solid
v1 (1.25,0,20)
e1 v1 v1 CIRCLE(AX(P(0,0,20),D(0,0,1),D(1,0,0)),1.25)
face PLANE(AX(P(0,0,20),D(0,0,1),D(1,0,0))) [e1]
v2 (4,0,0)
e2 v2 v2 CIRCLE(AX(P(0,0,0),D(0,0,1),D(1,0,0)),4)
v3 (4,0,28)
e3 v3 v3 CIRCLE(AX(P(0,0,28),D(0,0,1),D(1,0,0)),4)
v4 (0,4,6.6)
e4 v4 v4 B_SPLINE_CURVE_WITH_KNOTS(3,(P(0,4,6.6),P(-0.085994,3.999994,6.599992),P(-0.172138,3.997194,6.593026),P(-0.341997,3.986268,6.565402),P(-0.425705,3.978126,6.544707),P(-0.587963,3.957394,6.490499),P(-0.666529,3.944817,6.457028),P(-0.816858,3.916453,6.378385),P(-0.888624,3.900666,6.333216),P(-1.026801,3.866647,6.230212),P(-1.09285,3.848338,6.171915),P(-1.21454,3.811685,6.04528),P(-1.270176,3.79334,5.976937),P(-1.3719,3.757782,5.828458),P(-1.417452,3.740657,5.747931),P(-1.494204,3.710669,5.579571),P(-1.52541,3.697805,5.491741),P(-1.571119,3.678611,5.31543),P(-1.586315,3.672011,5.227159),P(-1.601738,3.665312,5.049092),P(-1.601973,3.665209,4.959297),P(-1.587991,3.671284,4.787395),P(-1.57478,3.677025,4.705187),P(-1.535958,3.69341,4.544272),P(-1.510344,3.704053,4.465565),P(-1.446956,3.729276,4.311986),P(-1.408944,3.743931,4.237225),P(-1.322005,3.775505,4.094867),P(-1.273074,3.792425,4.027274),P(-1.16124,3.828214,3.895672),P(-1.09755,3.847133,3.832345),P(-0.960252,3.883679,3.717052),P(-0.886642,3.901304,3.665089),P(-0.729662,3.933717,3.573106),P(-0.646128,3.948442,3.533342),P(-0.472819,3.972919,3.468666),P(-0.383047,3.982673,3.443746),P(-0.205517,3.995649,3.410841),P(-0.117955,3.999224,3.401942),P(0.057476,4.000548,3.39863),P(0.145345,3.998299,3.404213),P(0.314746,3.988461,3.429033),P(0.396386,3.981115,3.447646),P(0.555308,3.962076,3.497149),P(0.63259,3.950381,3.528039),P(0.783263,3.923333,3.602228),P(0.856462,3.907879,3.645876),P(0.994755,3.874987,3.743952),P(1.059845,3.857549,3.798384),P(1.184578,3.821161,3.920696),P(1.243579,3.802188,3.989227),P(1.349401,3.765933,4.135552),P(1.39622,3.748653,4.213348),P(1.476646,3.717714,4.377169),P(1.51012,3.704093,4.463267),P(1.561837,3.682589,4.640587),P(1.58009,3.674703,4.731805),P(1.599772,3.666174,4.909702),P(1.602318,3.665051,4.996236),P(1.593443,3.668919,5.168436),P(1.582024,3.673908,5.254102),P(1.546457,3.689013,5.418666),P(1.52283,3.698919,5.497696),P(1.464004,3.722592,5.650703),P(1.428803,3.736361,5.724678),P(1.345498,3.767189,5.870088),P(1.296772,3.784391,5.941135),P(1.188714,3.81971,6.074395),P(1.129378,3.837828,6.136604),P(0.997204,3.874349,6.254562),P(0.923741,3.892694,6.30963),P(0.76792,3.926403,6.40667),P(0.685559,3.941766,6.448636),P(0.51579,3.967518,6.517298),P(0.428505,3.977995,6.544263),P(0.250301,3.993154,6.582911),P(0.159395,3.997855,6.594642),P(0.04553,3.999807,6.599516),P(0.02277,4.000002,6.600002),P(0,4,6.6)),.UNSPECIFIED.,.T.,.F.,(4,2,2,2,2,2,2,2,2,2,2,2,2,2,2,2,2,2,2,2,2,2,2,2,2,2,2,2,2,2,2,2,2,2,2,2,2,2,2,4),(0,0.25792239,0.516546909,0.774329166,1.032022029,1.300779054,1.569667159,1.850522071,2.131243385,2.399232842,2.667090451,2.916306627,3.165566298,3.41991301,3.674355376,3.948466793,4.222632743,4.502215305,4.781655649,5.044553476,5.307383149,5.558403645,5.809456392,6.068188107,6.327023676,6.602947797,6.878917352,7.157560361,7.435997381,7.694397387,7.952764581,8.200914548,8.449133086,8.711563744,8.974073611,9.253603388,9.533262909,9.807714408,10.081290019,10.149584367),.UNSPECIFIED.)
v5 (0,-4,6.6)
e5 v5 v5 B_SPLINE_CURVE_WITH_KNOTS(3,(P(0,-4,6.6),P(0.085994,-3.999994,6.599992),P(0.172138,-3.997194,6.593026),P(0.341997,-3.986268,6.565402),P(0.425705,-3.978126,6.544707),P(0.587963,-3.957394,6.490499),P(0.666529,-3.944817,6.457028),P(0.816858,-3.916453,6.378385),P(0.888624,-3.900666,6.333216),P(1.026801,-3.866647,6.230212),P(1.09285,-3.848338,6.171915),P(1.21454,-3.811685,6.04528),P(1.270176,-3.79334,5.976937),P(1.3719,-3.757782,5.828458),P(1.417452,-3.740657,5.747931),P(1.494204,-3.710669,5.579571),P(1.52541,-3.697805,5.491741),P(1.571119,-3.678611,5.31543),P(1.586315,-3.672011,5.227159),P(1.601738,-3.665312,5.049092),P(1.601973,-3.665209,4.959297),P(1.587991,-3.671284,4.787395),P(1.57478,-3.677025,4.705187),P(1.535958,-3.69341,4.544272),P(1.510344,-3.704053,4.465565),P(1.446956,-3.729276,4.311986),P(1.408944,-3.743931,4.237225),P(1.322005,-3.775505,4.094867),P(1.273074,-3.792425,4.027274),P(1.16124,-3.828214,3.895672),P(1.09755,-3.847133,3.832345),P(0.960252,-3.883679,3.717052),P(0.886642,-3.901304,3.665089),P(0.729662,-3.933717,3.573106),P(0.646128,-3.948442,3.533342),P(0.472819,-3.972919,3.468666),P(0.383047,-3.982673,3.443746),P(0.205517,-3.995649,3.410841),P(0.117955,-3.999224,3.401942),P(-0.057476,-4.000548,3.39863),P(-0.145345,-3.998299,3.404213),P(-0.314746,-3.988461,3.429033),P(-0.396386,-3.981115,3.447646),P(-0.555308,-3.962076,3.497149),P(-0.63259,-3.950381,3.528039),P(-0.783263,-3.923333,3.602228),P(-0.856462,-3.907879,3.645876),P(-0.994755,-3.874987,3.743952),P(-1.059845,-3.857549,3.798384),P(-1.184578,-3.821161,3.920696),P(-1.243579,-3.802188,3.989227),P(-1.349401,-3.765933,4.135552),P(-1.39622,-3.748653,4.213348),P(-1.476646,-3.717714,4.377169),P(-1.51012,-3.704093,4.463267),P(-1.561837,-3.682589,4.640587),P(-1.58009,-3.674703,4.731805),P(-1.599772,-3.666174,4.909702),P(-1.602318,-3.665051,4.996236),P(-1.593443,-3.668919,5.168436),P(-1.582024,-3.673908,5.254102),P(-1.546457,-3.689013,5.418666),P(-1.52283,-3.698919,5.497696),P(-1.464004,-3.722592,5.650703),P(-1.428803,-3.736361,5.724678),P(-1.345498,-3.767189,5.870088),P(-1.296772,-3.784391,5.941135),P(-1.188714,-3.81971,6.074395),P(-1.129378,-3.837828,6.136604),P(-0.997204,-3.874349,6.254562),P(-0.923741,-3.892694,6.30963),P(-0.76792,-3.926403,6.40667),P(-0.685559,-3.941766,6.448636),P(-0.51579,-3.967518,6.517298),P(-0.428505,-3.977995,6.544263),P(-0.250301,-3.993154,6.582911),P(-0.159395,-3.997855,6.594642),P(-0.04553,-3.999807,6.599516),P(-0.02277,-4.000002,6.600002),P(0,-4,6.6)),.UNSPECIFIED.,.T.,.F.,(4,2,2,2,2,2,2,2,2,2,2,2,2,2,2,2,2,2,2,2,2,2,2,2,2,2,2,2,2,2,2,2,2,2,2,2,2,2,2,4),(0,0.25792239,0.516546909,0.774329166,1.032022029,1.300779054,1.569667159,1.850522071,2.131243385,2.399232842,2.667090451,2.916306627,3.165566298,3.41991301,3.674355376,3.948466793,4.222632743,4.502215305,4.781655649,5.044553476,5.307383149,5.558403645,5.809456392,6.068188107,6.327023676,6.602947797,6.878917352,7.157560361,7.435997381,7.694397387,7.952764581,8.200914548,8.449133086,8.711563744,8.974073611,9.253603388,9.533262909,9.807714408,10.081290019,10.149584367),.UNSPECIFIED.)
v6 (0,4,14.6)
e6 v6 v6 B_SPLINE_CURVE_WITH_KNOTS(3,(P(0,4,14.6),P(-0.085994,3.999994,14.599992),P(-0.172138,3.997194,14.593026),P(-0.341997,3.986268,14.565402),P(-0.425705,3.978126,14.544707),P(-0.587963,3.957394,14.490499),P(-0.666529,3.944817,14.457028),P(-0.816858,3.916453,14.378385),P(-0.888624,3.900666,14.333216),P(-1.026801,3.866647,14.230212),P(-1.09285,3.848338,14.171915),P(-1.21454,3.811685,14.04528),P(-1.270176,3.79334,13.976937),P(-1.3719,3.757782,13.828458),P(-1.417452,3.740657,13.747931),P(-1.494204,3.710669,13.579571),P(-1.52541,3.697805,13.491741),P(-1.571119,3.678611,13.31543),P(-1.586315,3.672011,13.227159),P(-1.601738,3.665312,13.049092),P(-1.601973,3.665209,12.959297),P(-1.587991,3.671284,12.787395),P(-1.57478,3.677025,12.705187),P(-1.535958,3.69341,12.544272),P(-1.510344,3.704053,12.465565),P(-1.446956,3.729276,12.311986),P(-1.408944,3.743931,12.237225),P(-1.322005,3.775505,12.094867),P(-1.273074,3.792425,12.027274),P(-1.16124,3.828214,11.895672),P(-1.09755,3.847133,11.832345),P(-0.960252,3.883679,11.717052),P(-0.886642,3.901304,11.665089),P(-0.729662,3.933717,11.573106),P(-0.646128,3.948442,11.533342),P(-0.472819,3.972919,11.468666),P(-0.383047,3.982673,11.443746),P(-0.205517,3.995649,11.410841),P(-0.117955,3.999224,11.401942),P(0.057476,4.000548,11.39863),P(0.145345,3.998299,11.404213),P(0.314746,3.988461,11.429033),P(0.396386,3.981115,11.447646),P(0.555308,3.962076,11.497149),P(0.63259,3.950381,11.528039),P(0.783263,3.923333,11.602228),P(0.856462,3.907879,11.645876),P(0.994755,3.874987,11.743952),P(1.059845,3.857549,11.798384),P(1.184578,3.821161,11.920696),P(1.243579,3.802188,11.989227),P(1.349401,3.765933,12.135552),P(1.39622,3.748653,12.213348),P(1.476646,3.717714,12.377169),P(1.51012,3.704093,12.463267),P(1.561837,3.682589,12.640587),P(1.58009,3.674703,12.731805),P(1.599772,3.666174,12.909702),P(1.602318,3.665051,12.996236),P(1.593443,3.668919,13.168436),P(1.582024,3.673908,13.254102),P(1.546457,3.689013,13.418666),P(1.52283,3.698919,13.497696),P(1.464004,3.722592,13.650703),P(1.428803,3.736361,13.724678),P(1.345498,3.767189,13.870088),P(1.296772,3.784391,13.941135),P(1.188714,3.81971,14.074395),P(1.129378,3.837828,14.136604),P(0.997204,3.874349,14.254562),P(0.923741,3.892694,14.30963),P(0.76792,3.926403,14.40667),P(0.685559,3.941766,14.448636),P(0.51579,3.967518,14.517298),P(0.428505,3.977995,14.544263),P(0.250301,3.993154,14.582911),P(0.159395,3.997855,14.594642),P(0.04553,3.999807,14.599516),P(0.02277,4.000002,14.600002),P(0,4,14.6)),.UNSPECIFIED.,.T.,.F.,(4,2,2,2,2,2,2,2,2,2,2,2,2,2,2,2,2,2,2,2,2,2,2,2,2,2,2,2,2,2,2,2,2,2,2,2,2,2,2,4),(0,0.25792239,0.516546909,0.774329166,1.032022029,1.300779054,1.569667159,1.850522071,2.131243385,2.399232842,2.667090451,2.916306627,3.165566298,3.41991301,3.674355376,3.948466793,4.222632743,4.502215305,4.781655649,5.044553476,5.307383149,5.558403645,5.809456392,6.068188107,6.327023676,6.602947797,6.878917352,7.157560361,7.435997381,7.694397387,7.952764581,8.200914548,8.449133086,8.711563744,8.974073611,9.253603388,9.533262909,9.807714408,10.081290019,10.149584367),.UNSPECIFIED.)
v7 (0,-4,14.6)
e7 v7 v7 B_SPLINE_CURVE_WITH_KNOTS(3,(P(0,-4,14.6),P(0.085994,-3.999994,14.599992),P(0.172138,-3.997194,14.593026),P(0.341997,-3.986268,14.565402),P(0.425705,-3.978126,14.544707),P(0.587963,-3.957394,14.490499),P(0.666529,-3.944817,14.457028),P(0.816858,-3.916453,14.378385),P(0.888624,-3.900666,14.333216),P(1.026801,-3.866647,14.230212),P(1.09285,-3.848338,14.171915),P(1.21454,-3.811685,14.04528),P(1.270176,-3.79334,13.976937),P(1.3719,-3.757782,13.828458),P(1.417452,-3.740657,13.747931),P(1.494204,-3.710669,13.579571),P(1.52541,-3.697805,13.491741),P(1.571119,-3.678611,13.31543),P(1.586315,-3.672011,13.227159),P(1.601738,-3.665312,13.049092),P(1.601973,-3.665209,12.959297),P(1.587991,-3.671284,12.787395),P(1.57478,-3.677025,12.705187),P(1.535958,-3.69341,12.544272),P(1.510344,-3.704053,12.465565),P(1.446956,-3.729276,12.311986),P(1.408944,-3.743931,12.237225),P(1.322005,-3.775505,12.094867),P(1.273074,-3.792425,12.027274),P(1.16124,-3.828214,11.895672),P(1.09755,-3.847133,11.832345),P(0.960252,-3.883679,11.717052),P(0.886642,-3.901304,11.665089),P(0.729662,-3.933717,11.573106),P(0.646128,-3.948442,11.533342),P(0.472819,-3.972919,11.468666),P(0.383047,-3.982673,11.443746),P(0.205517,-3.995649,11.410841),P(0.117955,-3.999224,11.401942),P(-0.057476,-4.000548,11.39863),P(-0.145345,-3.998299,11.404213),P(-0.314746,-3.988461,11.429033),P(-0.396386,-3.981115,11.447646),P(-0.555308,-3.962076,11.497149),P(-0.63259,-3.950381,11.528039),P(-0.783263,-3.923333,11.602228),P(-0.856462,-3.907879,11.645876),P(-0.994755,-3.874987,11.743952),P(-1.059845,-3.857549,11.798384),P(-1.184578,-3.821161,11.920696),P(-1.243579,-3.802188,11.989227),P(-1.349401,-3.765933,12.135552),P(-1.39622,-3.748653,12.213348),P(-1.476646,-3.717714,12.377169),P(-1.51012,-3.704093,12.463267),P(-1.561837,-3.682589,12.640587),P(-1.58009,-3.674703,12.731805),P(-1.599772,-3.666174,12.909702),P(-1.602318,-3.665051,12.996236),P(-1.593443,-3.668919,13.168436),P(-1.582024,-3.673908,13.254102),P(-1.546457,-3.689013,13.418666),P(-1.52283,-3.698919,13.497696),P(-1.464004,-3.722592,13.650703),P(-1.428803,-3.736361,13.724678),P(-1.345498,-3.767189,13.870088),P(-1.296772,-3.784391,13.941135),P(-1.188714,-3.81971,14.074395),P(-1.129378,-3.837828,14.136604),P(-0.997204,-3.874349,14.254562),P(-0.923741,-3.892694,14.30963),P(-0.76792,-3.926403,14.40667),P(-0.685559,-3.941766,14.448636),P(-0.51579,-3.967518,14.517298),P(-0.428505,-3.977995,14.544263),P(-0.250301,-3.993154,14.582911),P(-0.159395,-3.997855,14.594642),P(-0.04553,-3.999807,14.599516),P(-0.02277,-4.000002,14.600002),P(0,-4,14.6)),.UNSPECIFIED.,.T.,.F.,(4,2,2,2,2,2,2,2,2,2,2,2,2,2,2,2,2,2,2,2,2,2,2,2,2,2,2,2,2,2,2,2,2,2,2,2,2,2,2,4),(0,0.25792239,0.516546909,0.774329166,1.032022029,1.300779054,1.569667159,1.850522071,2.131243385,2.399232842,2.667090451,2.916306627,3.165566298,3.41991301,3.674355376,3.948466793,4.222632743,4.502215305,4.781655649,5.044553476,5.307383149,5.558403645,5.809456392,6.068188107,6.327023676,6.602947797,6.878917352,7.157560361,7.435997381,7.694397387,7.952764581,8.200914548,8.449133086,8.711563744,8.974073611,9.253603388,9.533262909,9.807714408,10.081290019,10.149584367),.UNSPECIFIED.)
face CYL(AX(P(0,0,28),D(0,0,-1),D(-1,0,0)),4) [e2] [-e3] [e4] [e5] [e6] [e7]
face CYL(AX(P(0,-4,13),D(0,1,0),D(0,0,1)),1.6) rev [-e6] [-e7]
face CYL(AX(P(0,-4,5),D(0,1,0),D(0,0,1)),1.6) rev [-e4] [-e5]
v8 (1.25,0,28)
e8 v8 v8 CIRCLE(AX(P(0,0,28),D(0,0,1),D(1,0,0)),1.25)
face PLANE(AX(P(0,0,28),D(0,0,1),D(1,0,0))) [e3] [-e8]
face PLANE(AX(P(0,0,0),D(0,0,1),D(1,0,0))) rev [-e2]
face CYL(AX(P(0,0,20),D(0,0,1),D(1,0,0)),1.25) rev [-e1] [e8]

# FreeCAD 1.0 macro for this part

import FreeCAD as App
import Part
import Sketcher
from FreeCAD import Vector

doc = App.newDocument("Part")
body = doc.addObject("PartDesign::Body", "Body")

sketch1 = body.newObject("Sketcher::SketchObject", "Sketch")
sketch1.AttachmentSupport = (doc.getObject("XY_Plane"), [""])
sketch1.MapMode = "FlatFace"
sketch1.addGeometry(Part.Circle(Vector(0, 0, 0), Vector(0, 0, 1), 4), False)
sketch1.addConstraint([
    Sketcher.Constraint("Coincident", 0, 3, -1, 1),
    Sketcher.Constraint("Diameter", 0, 8.0),
])
pad1 = body.newObject("PartDesign::Pad", "Pad")
pad1.Profile = sketch1
pad1.Length = 28

sketch2 = body.newObject("Sketcher::SketchObject", "Sketch001")
sketch2.AttachmentSupport = (doc.getObject("XZ_Plane"), [""])
sketch2.MapMode = "FlatFace"
sketch2.AttachmentOffset = App.Placement(Vector(0, 0, -4), App.Rotation())
sketch2.addGeometry([
    Part.Circle(Vector(0, 5, 0), Vector(0, 0, 1), 1.6),
    Part.Circle(Vector(0, 13, 0), Vector(0, 0, 1), 1.6),
], False)
sketch2.addConstraint([
    Sketcher.Constraint("Equal", 0, 1),
    Sketcher.Constraint("PointOnObject", 0, 3, -2),
    Sketcher.Constraint("PointOnObject", 1, 3, -2),
    Sketcher.Constraint("Diameter", 0, 3.2),
    Sketcher.Constraint("DistanceY", -1, 1, 0, 3, 5.0),
    Sketcher.Constraint("DistanceY", -1, 1, 1, 3, 13.0),
])
pocket1 = body.newObject("PartDesign::Pocket", "Pocket")
pocket1.Profile = sketch2
pocket1.Type = "ThroughAll"
pocket1.Reversed = True

sketch3 = body.newObject("Sketcher::SketchObject", "Sketch002")
sketch3.AttachmentSupport = (doc.getObject("XY_Plane"), [""])
sketch3.MapMode = "FlatFace"
sketch3.AttachmentOffset = App.Placement(Vector(0, 0, 28), App.Rotation())
sketch3.addGeometry(Part.Circle(Vector(0, 0, 0), Vector(0, 0, 1), 1.2), False)
sketch3.addConstraint([
    Sketcher.Constraint("Coincident", 0, 3, -1, 1),
    Sketcher.Constraint("Diameter", 0, 2.5),
])
pocket2 = body.newObject("PartDesign::Pocket", "Pocket001")
pocket2.Profile = sketch3
pocket2.Length = 8

doc.recompute()
